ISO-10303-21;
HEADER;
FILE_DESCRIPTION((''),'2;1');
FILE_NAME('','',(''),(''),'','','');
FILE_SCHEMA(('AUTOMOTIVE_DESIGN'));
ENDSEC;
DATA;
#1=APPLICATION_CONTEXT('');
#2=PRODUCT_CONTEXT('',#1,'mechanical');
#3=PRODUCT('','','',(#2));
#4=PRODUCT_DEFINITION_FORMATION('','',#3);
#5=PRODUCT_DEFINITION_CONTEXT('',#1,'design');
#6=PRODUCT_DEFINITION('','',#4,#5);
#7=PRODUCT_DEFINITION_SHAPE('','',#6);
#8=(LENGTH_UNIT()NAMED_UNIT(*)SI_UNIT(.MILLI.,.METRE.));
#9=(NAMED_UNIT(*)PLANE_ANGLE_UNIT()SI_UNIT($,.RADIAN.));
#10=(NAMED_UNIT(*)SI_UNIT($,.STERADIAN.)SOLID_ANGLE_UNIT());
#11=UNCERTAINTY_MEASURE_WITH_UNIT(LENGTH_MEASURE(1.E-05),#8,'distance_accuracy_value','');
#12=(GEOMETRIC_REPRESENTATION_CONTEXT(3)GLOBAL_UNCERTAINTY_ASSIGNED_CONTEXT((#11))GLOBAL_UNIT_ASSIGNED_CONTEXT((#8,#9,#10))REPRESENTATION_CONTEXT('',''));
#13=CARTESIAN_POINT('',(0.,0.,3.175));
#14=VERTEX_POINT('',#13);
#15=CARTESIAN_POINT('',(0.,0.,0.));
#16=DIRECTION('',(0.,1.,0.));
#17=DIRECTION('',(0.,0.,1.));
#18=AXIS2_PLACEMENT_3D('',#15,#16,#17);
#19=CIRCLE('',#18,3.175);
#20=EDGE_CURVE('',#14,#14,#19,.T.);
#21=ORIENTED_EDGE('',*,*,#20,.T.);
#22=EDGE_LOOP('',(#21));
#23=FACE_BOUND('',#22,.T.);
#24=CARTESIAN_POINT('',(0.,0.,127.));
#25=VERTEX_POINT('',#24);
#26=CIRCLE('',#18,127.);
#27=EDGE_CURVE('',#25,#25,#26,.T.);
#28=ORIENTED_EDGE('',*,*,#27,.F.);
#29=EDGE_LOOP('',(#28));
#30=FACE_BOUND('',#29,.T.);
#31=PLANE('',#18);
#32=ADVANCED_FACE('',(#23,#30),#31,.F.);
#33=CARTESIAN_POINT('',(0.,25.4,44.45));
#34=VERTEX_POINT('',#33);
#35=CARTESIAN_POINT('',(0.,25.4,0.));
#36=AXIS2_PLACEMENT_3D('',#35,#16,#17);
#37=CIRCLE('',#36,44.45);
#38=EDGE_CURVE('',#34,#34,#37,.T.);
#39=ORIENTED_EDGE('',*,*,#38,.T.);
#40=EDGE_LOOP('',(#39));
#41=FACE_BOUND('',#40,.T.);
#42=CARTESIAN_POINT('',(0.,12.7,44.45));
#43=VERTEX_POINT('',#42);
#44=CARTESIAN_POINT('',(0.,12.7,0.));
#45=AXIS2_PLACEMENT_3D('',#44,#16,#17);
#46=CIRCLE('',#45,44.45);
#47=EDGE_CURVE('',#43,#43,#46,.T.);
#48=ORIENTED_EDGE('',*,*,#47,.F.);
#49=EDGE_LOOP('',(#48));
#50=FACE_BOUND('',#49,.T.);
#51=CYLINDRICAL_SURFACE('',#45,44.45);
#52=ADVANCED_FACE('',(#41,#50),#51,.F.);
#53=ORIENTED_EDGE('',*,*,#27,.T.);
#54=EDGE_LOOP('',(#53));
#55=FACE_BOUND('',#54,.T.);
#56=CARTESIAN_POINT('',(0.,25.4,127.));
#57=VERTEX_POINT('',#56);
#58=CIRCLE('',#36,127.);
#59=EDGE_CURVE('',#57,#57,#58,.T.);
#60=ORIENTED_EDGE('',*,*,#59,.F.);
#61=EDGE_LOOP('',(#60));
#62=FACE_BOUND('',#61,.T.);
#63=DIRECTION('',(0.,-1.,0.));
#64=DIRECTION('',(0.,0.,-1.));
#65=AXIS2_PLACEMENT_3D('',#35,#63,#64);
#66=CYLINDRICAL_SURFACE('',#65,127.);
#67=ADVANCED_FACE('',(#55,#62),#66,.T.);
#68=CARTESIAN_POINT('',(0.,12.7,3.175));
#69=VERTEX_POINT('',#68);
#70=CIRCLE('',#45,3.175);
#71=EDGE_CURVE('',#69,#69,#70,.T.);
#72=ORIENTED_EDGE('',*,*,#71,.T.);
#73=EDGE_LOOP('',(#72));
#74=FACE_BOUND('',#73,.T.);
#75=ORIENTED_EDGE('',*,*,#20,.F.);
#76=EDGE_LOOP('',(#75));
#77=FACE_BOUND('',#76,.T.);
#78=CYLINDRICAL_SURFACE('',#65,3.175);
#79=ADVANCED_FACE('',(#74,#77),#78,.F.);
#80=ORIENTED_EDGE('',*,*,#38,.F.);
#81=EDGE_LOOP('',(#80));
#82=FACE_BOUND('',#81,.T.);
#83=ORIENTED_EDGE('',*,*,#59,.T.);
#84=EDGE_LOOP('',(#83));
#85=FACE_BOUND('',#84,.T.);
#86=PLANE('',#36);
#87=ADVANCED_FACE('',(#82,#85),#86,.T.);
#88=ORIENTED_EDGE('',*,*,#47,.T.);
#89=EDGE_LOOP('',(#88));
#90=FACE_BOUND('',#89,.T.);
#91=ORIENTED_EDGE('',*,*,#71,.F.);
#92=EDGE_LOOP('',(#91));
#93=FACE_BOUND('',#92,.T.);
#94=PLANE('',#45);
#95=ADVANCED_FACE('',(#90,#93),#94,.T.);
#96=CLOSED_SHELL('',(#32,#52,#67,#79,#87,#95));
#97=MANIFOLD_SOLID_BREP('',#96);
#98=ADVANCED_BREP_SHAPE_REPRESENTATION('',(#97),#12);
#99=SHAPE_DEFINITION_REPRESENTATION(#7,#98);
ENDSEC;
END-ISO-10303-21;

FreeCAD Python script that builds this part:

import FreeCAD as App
import Part
import Sketcher
from FreeCAD import Vector
Q = App.Units.Quantity

doc = App.newDocument("Part")
body = doc.addObject("PartDesign::Body", "Body")

# Sketch on XZ plane
sketch1 = body.newObject("Sketcher::SketchObject", "Sketch")
sketch1.AttachmentSupport = (doc.getObject("XZ_Plane"), [""])
sketch1.MapMode = "FlatFace"
sketch1.addGeometry([
    Part.Circle(Vector(0, 0, 0), Vector(0, 0, 1), 127),
    Part.Circle(Vector(0, 0, 0), Vector(0, 0, 1), 3.175),
], False)
sketch1.addConstraint([
    Sketcher.Constraint("Coincident", 0, 3, -1, 1),
    Sketcher.Constraint("Coincident", 1, 3, -1, 1),
    Sketcher.Constraint("Diameter", 0, Q("10 in")),
    Sketcher.Constraint("Diameter", 1, Q("0.25 in")),
])
pad1 = body.newObject("PartDesign::Pad", "Pad")
pad1.Profile = sketch1
pad1.Length = Q("1 in")
pad1.Reversed = True

# Sketch on XZ plane
sketch2 = body.newObject("Sketcher::SketchObject", "Sketch001")
sketch2.AttachmentSupport = (doc.getObject("XZ_Plane"), [""])
sketch2.MapMode = "FlatFace"
sketch2.AttachmentOffset = App.Placement(Vector(0, 0, -1 * 25.4), App.Rotation())
sketch2.addGeometry(Part.Circle(Vector(0, 0, 0), Vector(0, 0, 1), 44.45), False)
sketch2.addConstraint([
    Sketcher.Constraint("Coincident", 0, 3, -1, 1),
    Sketcher.Constraint("Diameter", 0, Q("3.5 in")),
])
pocket1 = body.newObject("PartDesign::Pocket", "Pocket")
pocket1.Profile = sketch2
pocket1.Length = Q("0.5 in")
pocket1.Reversed = True

doc.recompute()
